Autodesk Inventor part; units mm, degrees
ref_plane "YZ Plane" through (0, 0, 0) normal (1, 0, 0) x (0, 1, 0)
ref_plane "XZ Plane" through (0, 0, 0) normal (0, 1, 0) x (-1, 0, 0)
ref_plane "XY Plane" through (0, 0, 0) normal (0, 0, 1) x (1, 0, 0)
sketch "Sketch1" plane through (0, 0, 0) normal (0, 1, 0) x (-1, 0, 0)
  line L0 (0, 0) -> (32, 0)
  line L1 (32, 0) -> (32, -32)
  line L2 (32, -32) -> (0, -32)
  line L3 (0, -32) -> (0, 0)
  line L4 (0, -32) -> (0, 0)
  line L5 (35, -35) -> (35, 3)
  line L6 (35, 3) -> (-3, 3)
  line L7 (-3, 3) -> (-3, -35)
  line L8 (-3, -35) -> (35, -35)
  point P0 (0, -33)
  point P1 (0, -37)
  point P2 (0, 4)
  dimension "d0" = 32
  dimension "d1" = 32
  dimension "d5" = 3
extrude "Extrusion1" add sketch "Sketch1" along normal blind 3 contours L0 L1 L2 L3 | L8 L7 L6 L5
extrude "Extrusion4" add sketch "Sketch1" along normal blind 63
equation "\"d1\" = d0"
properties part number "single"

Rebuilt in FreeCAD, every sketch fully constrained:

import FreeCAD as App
import Part
import Sketcher
from FreeCAD import Vector

doc = App.newDocument("Part")
body = doc.addObject("PartDesign::Body", "Body")

# Sketch on XZ plane
sketch1 = doc.addObject("Sketcher::SketchObject", "Sketch")
body.addObject(sketch1)
sketch1.AttachmentSupport = (doc.XZ_Plane, [""])
sketch1.MapMode = "FlatFace"
sketch1.addGeometry(Part.LineSegment(Vector(3, -35, 0), Vector(-35, -35, 0)), False)
sketch1.addGeometry(Part.LineSegment(Vector(-35, -35, 0), Vector(-35, 3, 0)), False)
sketch1.addGeometry(Part.LineSegment(Vector(-35, 3, 0), Vector(3, 3, 0)), False)
sketch1.addGeometry(Part.LineSegment(Vector(3, 3, 0), Vector(3, -35, 0)), False)
sketch1.addConstraint(Sketcher.Constraint("Coincident", 0, 2, 1, 1))
sketch1.addConstraint(Sketcher.Constraint("Coincident", 1, 2, 2, 1))
sketch1.addConstraint(Sketcher.Constraint("Coincident", 2, 2, 3, 1))
sketch1.addConstraint(Sketcher.Constraint("Coincident", 3, 2, 0, 1))
sketch1.addConstraint(Sketcher.Constraint("Horizontal", 0))
sketch1.addConstraint(Sketcher.Constraint("Vertical", 1))
sketch1.addConstraint(Sketcher.Constraint("Horizontal", 2))
sketch1.addConstraint(Sketcher.Constraint("Vertical", 3))
sketch1.addConstraint(Sketcher.Constraint("Equal", 2, 1))
sketch1.addConstraint(Sketcher.Constraint("DistanceY", -1, 1, 1, 2, 3.0))
sketch1.addConstraint(Sketcher.Constraint("DistanceX", -1, 1, 2, 2, 3.0))
sketch1.addConstraint(Sketcher.Constraint("DistanceX", 0, 2, 0, 1, 38.0))
pad1 = doc.addObject("PartDesign::Pad", "Pad")
body.addObject(pad1)
pad1.Profile = sketch1
pad1.Length = 3
pad1.Reversed = True

# Sketch on XZ plane
sketch2 = doc.addObject("Sketcher::SketchObject", "Sketch001")
body.addObject(sketch2)
sketch2.AttachmentSupport = (doc.XZ_Plane, [""])
sketch2.MapMode = "FlatFace"
sketch2.addGeometry(Part.LineSegment(Vector(3, -35, 0), Vector(-35, -35, 0)), False)
sketch2.addGeometry(Part.LineSegment(Vector(-35, -35, 0), Vector(-35, 3, 0)), False)
sketch2.addGeometry(Part.LineSegment(Vector(-35, 3, 0), Vector(3, 3, 0)), False)
sketch2.addGeometry(Part.LineSegment(Vector(3, 3, 0), Vector(3, -35, 0)), False)
sketch2.addGeometry(Part.LineSegment(Vector(0, -32, 0), Vector(0, 0, 0)), False)
sketch2.addGeometry(Part.LineSegment(Vector(0, 0, 0), Vector(-32, 0, 0)), False)
sketch2.addGeometry(Part.LineSegment(Vector(-32, 0, 0), Vector(-32, -32, 0)), False)
sketch2.addGeometry(Part.LineSegment(Vector(-32, -32, 0), Vector(0, -32, 0)), False)
sketch2.addConstraint(Sketcher.Constraint("Coincident", 0, 2, 1, 1))
sketch2.addConstraint(Sketcher.Constraint("Coincident", 1, 2, 2, 1))
sketch2.addConstraint(Sketcher.Constraint("Coincident", 2, 2, 3, 1))
sketch2.addConstraint(Sketcher.Constraint("Coincident", 3, 2, 0, 1))
sketch2.addConstraint(Sketcher.Constraint("Coincident", 4, 2, 5, 1))
sketch2.addConstraint(Sketcher.Constraint("Coincident", 5, 2, 6, 1))
sketch2.addConstraint(Sketcher.Constraint("Coincident", 6, 2, 7, 1))
sketch2.addConstraint(Sketcher.Constraint("Coincident", 7, 2, 4, 1))
sketch2.addConstraint(Sketcher.Constraint("Horizontal", 0))
sketch2.addConstraint(Sketcher.Constraint("Vertical", 1))
sketch2.addConstraint(Sketcher.Constraint("Horizontal", 2))
sketch2.addConstraint(Sketcher.Constraint("Vertical", 3))
sketch2.addConstraint(Sketcher.Constraint("Vertical", 4))
sketch2.addConstraint(Sketcher.Constraint("Horizontal", 5))
sketch2.addConstraint(Sketcher.Constraint("Vertical", 6))
sketch2.addConstraint(Sketcher.Constraint("Horizontal", 7))
sketch2.addConstraint(Sketcher.Constraint("Coincident", 4, 2, -1, 1))
sketch2.addConstraint(Sketcher.Constraint("Equal", 2, 1))
sketch2.addConstraint(Sketcher.Constraint("Equal", 7, 4))
sketch2.addConstraint(Sketcher.Constraint("DistanceX", 5, 2, 5, 1, 32.0))
sketch2.addConstraint(Sketcher.Constraint("DistanceY", -1, 1, 1, 2, 3.0))
sketch2.addConstraint(Sketcher.Constraint("DistanceX", -1, 1, 2, 2, 3.0))
sketch2.addConstraint(Sketcher.Constraint("DistanceX", 1, 2, 5, 2, 3.0))
pad2 = doc.addObject("PartDesign::Pad", "Pad001")
body.addObject(pad2)
pad2.Profile = sketch2
pad2.Length = 63
pad2.Reversed = True

doc.recompute()
